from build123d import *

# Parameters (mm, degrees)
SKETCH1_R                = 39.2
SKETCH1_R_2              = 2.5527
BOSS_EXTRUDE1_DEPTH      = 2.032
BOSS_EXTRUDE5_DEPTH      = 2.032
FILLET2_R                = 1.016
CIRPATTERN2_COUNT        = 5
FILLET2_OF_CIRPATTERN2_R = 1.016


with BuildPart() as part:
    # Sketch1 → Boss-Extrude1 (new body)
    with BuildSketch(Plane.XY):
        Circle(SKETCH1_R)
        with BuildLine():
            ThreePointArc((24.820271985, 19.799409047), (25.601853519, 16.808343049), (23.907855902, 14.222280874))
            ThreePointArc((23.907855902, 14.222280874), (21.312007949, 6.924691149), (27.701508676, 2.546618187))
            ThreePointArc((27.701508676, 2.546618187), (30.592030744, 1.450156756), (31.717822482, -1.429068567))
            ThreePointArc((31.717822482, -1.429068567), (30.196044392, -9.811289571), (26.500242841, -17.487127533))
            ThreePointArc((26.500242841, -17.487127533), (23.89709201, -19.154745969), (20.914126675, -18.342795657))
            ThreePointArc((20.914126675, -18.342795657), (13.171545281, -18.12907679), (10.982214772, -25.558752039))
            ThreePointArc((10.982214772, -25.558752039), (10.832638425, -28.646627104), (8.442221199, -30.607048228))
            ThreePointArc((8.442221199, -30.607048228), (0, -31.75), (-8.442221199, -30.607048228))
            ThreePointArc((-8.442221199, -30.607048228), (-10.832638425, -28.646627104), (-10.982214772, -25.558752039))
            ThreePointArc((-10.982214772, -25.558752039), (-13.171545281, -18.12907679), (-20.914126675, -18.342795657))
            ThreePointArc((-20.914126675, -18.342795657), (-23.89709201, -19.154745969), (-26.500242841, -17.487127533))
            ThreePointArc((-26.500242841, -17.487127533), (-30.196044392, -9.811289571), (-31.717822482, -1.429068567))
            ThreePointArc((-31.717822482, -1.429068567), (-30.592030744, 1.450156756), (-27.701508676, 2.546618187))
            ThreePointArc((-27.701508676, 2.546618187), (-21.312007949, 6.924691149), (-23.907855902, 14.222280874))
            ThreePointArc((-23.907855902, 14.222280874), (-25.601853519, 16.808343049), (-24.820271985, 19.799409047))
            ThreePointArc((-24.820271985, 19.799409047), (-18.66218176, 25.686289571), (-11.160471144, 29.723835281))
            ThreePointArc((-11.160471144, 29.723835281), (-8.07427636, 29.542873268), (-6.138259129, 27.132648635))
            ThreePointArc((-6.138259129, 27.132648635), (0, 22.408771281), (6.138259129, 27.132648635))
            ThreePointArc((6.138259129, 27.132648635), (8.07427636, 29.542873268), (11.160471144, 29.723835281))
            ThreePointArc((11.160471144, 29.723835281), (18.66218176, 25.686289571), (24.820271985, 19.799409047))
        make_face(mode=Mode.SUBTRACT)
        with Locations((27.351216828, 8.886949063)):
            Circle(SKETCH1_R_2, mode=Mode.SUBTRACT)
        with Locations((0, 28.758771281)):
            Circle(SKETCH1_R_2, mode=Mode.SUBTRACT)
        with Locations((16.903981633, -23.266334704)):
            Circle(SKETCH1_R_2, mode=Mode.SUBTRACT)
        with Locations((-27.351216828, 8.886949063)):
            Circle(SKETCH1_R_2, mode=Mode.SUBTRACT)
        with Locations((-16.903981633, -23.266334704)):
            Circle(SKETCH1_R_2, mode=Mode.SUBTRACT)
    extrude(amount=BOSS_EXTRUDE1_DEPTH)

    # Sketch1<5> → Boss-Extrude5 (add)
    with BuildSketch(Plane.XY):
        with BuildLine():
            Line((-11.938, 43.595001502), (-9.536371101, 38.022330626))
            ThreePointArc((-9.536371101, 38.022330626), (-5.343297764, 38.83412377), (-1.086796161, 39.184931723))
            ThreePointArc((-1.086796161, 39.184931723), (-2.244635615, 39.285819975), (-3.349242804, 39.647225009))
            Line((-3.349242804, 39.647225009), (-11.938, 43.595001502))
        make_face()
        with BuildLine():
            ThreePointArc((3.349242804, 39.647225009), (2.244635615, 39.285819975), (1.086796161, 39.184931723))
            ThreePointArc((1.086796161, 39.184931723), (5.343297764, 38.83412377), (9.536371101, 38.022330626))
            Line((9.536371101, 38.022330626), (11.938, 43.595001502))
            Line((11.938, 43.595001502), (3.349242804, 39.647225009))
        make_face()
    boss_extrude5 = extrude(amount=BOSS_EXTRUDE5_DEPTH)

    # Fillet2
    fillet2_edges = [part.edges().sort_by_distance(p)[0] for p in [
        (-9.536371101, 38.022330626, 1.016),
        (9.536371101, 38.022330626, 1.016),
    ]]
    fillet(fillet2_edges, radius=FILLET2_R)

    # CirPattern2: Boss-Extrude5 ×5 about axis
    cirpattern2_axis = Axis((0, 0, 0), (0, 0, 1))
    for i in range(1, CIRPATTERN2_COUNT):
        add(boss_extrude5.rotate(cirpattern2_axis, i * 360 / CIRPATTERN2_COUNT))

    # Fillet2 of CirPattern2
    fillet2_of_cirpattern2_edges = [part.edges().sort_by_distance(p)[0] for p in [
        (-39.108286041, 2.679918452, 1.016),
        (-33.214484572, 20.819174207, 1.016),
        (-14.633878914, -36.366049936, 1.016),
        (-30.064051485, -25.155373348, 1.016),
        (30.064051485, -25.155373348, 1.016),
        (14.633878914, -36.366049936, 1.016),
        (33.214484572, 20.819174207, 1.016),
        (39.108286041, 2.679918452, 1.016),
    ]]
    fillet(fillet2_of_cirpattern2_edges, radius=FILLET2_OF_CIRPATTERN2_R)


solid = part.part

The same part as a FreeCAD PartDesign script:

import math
import FreeCAD as App
import Part
import Sketcher
from FreeCAD import Vector
Q = App.Units.Quantity


def edges_at(feature, points):
    """Names of the edges that pass closest to the given points."""
    edges = feature.Shape.Edges
    near = lambda p: min(range(len(edges)), key=lambda i: edges[i].distToShape(Part.Vertex(*p))[0])
    return sorted({f"Edge{near(p) + 1}" for p in points})

doc = App.newDocument("Part")
params = doc.addObject("Spreadsheet::Sheet", "Params")
for row, (alias, value) in enumerate([
    ("sketch1_radius", "1.25 in"),
    ("sketch1_radius2", "0.15 in"),
    ("sketch1_radius3", "0.25 in"),
    ("sketch1_radius4", "0.15 in"),
    ("sketch1_radius5", "1.25 in"),
    ("pad1_length", "0.08 in"),
    ("sketch2_radius", "0.2 in"),
    ("pad2_length", "0.08 in"),
    ("fillet_radius", "0.04 in"),
    ("fillet2_radius", "0.04 in"),
], start=1):
    params.set(f"A{row}", alias)
    params.set(f"B{row}", "=" + value)
    params.setAlias(f"B{row}", alias)

body = doc.addObject("PartDesign::Body", "Body")

# Sketch on XY plane
sketch1 = body.newObject("Sketcher::SketchObject", "Sketch")
sketch1.AttachmentSupport = (doc.getObject("XY_Plane"), [""])
sketch1.MapMode = "FlatFace"
sketch1.addGeometry([
    Part.Circle(Vector(0, 0, 0), Vector(0, 0, 1), 39.2),  # 0
    Part.Circle(Vector(-16.903982, -23.266335, 0), Vector(0, 0, 1), 2.5527),  # 1
    Part.Circle(Vector(16.903982, -23.266335, 0), Vector(0, 0, 1), 2.5527),  # 2
    Part.ArcOfCircle(Part.Circle(Vector(0, 0, 0), Vector(0, 0, 1), 31.75), math.radians(38.579757), math.radians(69.420243)),  # 3
    Part.ArcOfCircle(Part.Circle(Vector(21.841839, 17.42348, 0), Vector(0, 0, 1), 3.81), math.radians(-57.162274), math.radians(38.579757)),  # 4
    Part.ArcOfCircle(Part.Circle(Vector(27.351217, 8.886949, 0), Vector(0, 0, 1), 6.35), math.radians(122.837726), math.radians(273.162274)),  # 5
    Part.ArcOfCircle(Part.Circle(Vector(27.911684, -1.25758, 0), Vector(0, 0, 1), 3.81), math.radians(-2.579757), math.radians(93.162274)),  # 6
    Part.ArcOfCircle(Part.Circle(Vector(0, 0, 0), Vector(0, 0, 1), 31.75), math.radians(-33.420243), math.radians(-2.579757)),  # 7
    Part.ArcOfCircle(Part.Circle(Vector(23.320214, -15.388672, 0), Vector(0, 0, 1), 3.81), math.radians(-129.162274), math.radians(-33.420243)),  # 8
    Part.ArcOfCircle(Part.Circle(Vector(16.903982, -23.266335, 0), Vector(0, 0, 1), 6.35), math.radians(50.837726), math.radians(201.162274)),  # 9
    Part.ArcOfCircle(Part.Circle(Vector(7.429155, -26.934202, 0), Vector(0, 0, 1), 3.81), math.radians(-74.579757), math.radians(21.162274)),  # 10
    Part.ArcOfCircle(Part.Circle(Vector(0, 0, 0), Vector(0, 0, 1), 31.75), math.radians(-105.420243), math.radians(-74.579757)),  # 11
    Part.ArcOfCircle(Part.Circle(Vector(-7.429155, -26.934202, 0), Vector(0, 0, 1), 3.81), math.radians(158.837726), math.radians(254.579757)),  # 12
    Part.ArcOfCircle(Part.Circle(Vector(-16.903982, -23.266335, 0), Vector(0, 0, 1), 6.35), math.radians(-21.162274), math.radians(129.162274)),  # 13
    Part.ArcOfCircle(Part.Circle(Vector(-23.320214, -15.388672, 0), Vector(0, 0, 1), 3.81), math.radians(-146.579757), math.radians(-50.837726)),  # 14
    Part.ArcOfCircle(Part.Circle(Vector(0, 0, 0), Vector(0, 0, 1), 31.75), math.radians(-177.420243), math.radians(-146.579757)),  # 15
    Part.ArcOfCircle(Part.Circle(Vector(-27.911684, -1.25758, 0), Vector(0, 0, 1), 3.81), math.radians(86.837726), math.radians(182.579757)),  # 16
    Part.ArcOfCircle(Part.Circle(Vector(-27.351217, 8.886949, 0), Vector(0, 0, 1), 6.35), math.radians(-93.162274), math.radians(57.162274)),  # 17
    Part.ArcOfCircle(Part.Circle(Vector(-21.841839, 17.42348, 0), Vector(0, 0, 1), 3.81), math.radians(141.420243), math.radians(237.162274)),  # 18
    Part.ArcOfCircle(Part.Circle(Vector(0, 0, 0), Vector(0, 0, 1), 31.75), math.radians(110.579757), math.radians(141.420243)),  # 19
    Part.ArcOfCircle(Part.Circle(Vector(-9.821215, 26.156975, 0), Vector(0, 0, 1), 3.81), math.radians(14.837726), math.radians(110.579757)),  # 20
    Part.ArcOfCircle(Part.Circle(Vector(0, 28.758771, 0), Vector(0, 0, 1), 6.35), math.radians(-165.162274), math.radians(-14.837726)),  # 21
    Part.ArcOfCircle(Part.Circle(Vector(9.821215, 26.156975, 0), Vector(0, 0, 1), 3.81), math.radians(69.420243), math.radians(165.162274)),  # 22
    Part.Circle(Vector(-27.351217, 8.886949, 0), Vector(0, 0, 1), 2.5527),  # 23
    Part.Circle(Vector(27.351217, 8.886949, 0), Vector(0, 0, 1), 2.5527),  # 24
    Part.Circle(Vector(0, 28.758771, 0), Vector(0, 0, 1), 2.5527),  # 25
], False)
sketch1.addConstraint([
    Sketcher.Constraint("Coincident", 3, 1, 4, 2),
    Sketcher.Constraint("Coincident", 4, 1, 5, 1),
    Sketcher.Constraint("Coincident", 5, 2, 6, 2),
    Sketcher.Constraint("Coincident", 6, 1, 7, 2),
    Sketcher.Constraint("Coincident", 7, 1, 8, 2),
    Sketcher.Constraint("Coincident", 8, 1, 9, 1),
    Sketcher.Constraint("Coincident", 9, 2, 10, 2),
    Sketcher.Constraint("Coincident", 10, 1, 11, 2),
    Sketcher.Constraint("Coincident", 11, 1, 12, 2),
    Sketcher.Constraint("Coincident", 12, 1, 13, 1),
    Sketcher.Constraint("Coincident", 13, 2, 14, 2),
    Sketcher.Constraint("Coincident", 14, 1, 15, 2),
    Sketcher.Constraint("Coincident", 15, 1, 16, 2),
    Sketcher.Constraint("Coincident", 16, 1, 17, 1),
    Sketcher.Constraint("Coincident", 17, 2, 18, 2),
    Sketcher.Constraint("Coincident", 18, 1, 19, 2),
    Sketcher.Constraint("Coincident", 19, 1, 20, 2),
    Sketcher.Constraint("Coincident", 20, 1, 21, 1),
    Sketcher.Constraint("Coincident", 21, 2, 22, 2),
    Sketcher.Constraint("Coincident", 22, 1, 3, 2),
    Sketcher.Constraint("Coincident", 0, 3, -1, 1),
    Sketcher.Constraint("Coincident", 3, 3, -1, 1),
    Sketcher.Constraint("Coincident", 7, 3, -1, 1),
    Sketcher.Constraint("Coincident", 11, 3, -1, 1),
    Sketcher.Constraint("Coincident", 15, 3, -1, 1),
    Sketcher.Constraint("Coincident", 19, 3, -1, 1),
    Sketcher.Constraint("Coincident", 9, 3, 2, 3),
    Sketcher.Constraint("Coincident", 13, 3, 1, 3),
    Sketcher.Constraint("Coincident", 23, 3, 17, 3),
    Sketcher.Constraint("Coincident", 24, 3, 5, 3),
    Sketcher.Constraint("Coincident", 25, 3, 21, 3),
    Sketcher.Constraint("PointOnObject", 21, 3, -2),
    Sketcher.Constraint("Radius", 3, Q("1.25 in")),
    Sketcher.Constraint("Radius", 4, Q("0.15 in")),
    Sketcher.Constraint("Radius", 5, Q("0.25 in")),
    Sketcher.Constraint("Radius", 6, Q("0.15 in")),
    Sketcher.Constraint("Radius", 7, Q("1.25 in")),
    Sketcher.Constraint("Radius", 8, Q("0.15 in")),
    Sketcher.Constraint("Radius", 9, Q("0.25 in")),
    Sketcher.Constraint("Radius", 10, Q("0.15 in")),
    Sketcher.Constraint("Radius", 11, Q("1.25 in")),
    Sketcher.Constraint("Radius", 12, Q("0.15 in")),
    Sketcher.Constraint("Radius", 13, Q("0.25 in")),
    Sketcher.Constraint("Radius", 14, Q("0.15 in")),
    Sketcher.Constraint("Radius", 15, Q("1.25 in")),
    Sketcher.Constraint("Radius", 16, Q("0.15 in")),
    Sketcher.Constraint("Radius", 17, Q("0.25 in")),
    Sketcher.Constraint("Radius", 18, Q("0.15 in")),
    Sketcher.Constraint("Radius", 19, Q("1.25 in")),
    Sketcher.Constraint("Radius", 20, Q("0.15 in")),
    Sketcher.Constraint("Radius", 21, Q("0.25 in")),
    Sketcher.Constraint("Radius", 22, Q("0.15 in")),
    Sketcher.Constraint("Diameter", 1, Q("0.201 in")),
    Sketcher.Constraint("Diameter", 2, Q("0.201 in")),
    Sketcher.Constraint("Diameter", 23, Q("0.201 in")),
    Sketcher.Constraint("Diameter", 24, Q("0.201 in")),
    Sketcher.Constraint("Diameter", 25, Q("0.201 in")),
    Sketcher.Constraint("Diameter", 0, 78.4),
    Sketcher.Constraint("DistanceX", 1, 3, 5, 3, 44.255198),
    Sketcher.Constraint("DistanceY", 4, 1, 4, 3, 3.201199),
    Sketcher.Constraint("DistanceY", 6, 3, 5, 2, 3.804199),
    Sketcher.Constraint("DistanceX", 9, 2, 8, 3, 12.337999),
    Sketcher.Constraint("DistanceX", 14, 3, 12, 1, 12.337999),
    Sketcher.Constraint("DistanceY", 16, 3, 16, 1, 3.804199),
    Sketcher.Constraint("DistanceY", 17, 2, 18, 3, 3.201199),
    Sketcher.Constraint("DistanceX", 18, 1, 19, 1, 13.659801),
    Sketcher.Constraint("DistanceX", 1, 3, -1, 1, 16.903982),
    Sketcher.Constraint("DistanceX", -1, 1, 2, 3, 16.903982),
    Sketcher.Constraint("DistanceX", -1, 1, 4, 3, 21.841839),
    Sketcher.Constraint("DistanceY", 16, 3, -1, 1, 1.25758),
    Sketcher.Constraint("DistanceY", -1, 1, 17, 3, 8.886949),
    Sketcher.Constraint("DistanceY", -1, 1, 21, 3, 28.758771),
    Sketcher.Constraint("DistanceX", -1, 1, 3, 1, 24.820272),
    Sketcher.Constraint("DistanceY", 6, 1, -1, 1, 1.429069),
    Sketcher.Constraint("DistanceX", -1, 1, 10, 1, 8.442221),
    Sketcher.Constraint("DistanceX", 11, 1, -1, 1, 8.442221),
    Sketcher.Constraint("DistanceY", 15, 1, -1, 1, 1.429069),
    Sketcher.Constraint("DistanceX", 18, 1, -1, 1, 24.820272),
    Sketcher.Constraint("DistanceX", 20, 1, -1, 1, 6.138259),
    Sketcher.Constraint("DistanceX", -1, 1, 21, 2, 6.138259),
    Sketcher.Constraint("DistanceX", -1, 1, 22, 1, 11.160471),
    Sketcher.Constraint("DistanceX", 8, 3, 6, 3, 4.59147),
    Sketcher.Constraint("DistanceX", 12, 3, 10, 3, 14.858309),
    Sketcher.Constraint("DistanceX", 8, 3, 7, 1, 3.180029),
    Sketcher.Constraint("DistanceY", 8, 1, 7, 1, 0.855668),
    Sketcher.Constraint("DistanceY", 13, 3, 13, 2, 4.923539),
    Sketcher.Constraint("DistanceX", 14, 1, 14, 3, 3.180029),
])
sketch1.setExpression("Constraints[32]", "Params.sketch1_radius")
sketch1.setExpression("Constraints[33]", "Params.sketch1_radius2")
sketch1.setExpression("Constraints[34]", "Params.sketch1_radius3")
sketch1.setExpression("Constraints[35]", "Params.sketch1_radius4")
sketch1.setExpression("Constraints[36]", "Params.sketch1_radius5")
pad1 = body.newObject("PartDesign::Pad", "Pad")
pad1.Profile = sketch1
pad1.setExpression("Length", "Params.pad1_length")

# Sketch on XY plane
sketch2 = body.newObject("Sketcher::SketchObject", "Sketch001")
sketch2.AttachmentSupport = (doc.getObject("XY_Plane"), [""])
sketch2.MapMode = "FlatFace"
sketch2.addGeometry([
    Part.LineSegment(Vector(-11.938, 43.595002, 0), Vector(-9.536371, 38.022331, 0)),  # 0
    Part.ArcOfCircle(Part.Circle(Vector(0, 0, 0), Vector(0, 0, 1), 39.2), math.radians(91.588694), math.radians(104.079901)),  # 1
    Part.ArcOfCircle(Part.Circle(Vector(-1.227636, 44.262979, 0), Vector(0, 0, 1), 5.08), math.radians(-114.685625), math.radians(-88.411306)),  # 2
    Part.LineSegment(Vector(-3.349243, 39.647225, 0), Vector(-11.938, 43.595002, 0)),  # 3
    Part.ArcOfCircle(Part.Circle(Vector(1.227636, 44.262979, 0), Vector(0, 0, 1), 5.08), math.radians(-91.588694), math.radians(-65.314375)),  # 4
    Part.ArcOfCircle(Part.Circle(Vector(0, 0, 0), Vector(0, 0, 1), 39.2), math.radians(75.920099), math.radians(88.411306)),  # 5
    Part.LineSegment(Vector(9.536371, 38.022331, 0), Vector(11.938, 43.595002, 0)),  # 6
    Part.LineSegment(Vector(11.938, 43.595002, 0), Vector(3.349243, 39.647225, 0)),  # 7
], False)
sketch2.addConstraint([
    Sketcher.Constraint("Coincident", 0, 2, 1, 2),
    Sketcher.Constraint("Tangent", 1, 1, 2, 2),
    Sketcher.Constraint("Tangent", 2, 1, 3, 1),
    Sketcher.Constraint("Coincident", 3, 2, 0, 1),
    Sketcher.Constraint("Tangent", 4, 1, 5, 2),
    Sketcher.Constraint("Coincident", 5, 1, 6, 1),
    Sketcher.Constraint("Coincident", 6, 2, 7, 1),
    Sketcher.Constraint("Tangent", 7, 2, 4, 2),
    Sketcher.Constraint("Coincident", 1, 3, -1, 1),
    Sketcher.Constraint("Coincident", 5, 3, -1, 1),
    Sketcher.Constraint("Equal", 2, 4),
    Sketcher.Constraint("Equal", 1, 5),
    Sketcher.Constraint("Symmetric", 3, 2, 6, 2, -2),
    Sketcher.Constraint("Horizontal", 2, 3, 4, 3),
    Sketcher.Constraint("Horizontal", 0, 2, 5, 1),
    Sketcher.Constraint("Radius", 2, Q("0.2 in")),
    Sketcher.Constraint("DistanceX", 3, 2, -1, 1, Q("0.47 in")),
    Sketcher.Constraint("Radius", 1, 39.2),
    Sketcher.Constraint("DistanceY", -1, 1, 3, 2, 43.595002),
    Sketcher.Constraint("DistanceY", 0, 2, 1, 1, 1.162601),
    Sketcher.Constraint("DistanceY", -1, 1, 2, 3, 44.262979),
])
sketch2.setExpression("Constraints[15]", "Params.sketch2_radius")
pad2 = body.newObject("PartDesign::Pad", "Pad001")
pad2.Profile = sketch2
pad2.setExpression("Length", "Params.pad2_length")
doc.recompute()

fillet = body.newObject("PartDesign::Fillet", "Fillet")
fillet.Base = (pad2, edges_at(pad2, [(-9.536, 38.022, 1.016), (9.536, 38.022, 1.016)]))
fillet.setExpression("Radius", "Params.fillet_radius")
doc.recompute()

polarpattern = body.newObject("PartDesign::PolarPattern", "PolarPattern")
polarpattern.Originals = [pad2]
polarpattern.Axis = (doc.getObject("Z_Axis"), [""])
polarpattern.Angle = 360
polarpattern.Occurrences = 5
body.Tip = polarpattern
doc.recompute()

fillet2 = body.newObject("PartDesign::Fillet", "Fillet001")
fillet2.Base = (polarpattern, edges_at(polarpattern, [
    (-39.108, 2.68, 1.016),
    (-33.214, 20.819, 1.016),
    (-14.634, -36.366, 1.016),
    (-30.064, -25.155, 1.016),
    (30.064, -25.155, 1.016),
    (14.634, -36.366, 1.016),
    (33.214, 20.819, 1.016),
    (39.108, 2.68, 1.016),
]))
fillet2.setExpression("Radius", "Params.fillet2_radius")

doc.recompute()
